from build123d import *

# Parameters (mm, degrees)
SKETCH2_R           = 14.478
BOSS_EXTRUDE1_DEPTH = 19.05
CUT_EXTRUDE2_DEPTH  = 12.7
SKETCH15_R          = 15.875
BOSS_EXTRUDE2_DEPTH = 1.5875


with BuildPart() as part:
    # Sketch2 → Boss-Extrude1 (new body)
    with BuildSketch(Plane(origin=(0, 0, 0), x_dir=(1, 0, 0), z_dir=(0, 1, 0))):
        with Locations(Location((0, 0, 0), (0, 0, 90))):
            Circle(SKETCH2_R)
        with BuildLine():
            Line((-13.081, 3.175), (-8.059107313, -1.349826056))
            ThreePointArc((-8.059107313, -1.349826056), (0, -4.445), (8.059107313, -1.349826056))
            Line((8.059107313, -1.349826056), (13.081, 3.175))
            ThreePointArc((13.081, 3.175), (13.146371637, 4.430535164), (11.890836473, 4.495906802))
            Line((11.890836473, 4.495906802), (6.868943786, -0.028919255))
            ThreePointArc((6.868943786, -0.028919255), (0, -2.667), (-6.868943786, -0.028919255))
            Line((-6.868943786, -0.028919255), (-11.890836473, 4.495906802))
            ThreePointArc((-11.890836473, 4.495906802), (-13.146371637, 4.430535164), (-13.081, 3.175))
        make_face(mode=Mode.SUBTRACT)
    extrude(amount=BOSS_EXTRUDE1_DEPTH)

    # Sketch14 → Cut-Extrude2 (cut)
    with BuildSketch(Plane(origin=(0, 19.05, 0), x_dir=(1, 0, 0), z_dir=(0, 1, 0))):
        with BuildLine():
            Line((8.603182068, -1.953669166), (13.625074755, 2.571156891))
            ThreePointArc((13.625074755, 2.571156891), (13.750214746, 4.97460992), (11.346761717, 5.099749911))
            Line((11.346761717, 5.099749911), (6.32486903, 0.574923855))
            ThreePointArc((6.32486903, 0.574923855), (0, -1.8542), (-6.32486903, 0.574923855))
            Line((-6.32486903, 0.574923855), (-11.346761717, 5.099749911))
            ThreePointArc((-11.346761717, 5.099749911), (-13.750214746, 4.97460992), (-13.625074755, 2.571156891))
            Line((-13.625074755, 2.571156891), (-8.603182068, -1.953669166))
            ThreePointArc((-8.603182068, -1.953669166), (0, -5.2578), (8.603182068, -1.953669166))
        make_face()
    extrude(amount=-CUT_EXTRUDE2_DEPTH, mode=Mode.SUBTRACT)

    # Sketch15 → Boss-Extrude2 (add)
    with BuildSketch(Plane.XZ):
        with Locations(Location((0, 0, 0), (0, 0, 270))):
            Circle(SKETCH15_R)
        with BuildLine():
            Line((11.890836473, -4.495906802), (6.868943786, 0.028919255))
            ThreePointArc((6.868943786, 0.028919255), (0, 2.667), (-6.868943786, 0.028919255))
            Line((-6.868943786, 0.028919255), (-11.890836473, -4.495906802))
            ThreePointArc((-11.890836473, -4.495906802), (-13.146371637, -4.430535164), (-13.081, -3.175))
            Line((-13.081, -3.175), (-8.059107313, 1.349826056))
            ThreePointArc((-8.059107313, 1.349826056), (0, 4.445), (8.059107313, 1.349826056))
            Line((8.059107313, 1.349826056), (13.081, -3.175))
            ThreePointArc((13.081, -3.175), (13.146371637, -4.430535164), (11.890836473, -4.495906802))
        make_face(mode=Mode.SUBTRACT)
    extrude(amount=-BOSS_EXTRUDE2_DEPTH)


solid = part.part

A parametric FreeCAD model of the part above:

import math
import FreeCAD as App
import Part
import Sketcher

V = App.Vector
Q = App.Units.Quantity

doc = App.newDocument("Part")
body = doc.addObject("PartDesign::Body", "Body")

sketch1 = body.newObject("Sketcher::SketchObject", "Sketch")
sketch1.AttachmentSupport = (doc.getObject("XZ_Plane"), [""])
sketch1.MapMode = "FlatFace"
sketch1.addGeometry([
    Part.Circle(V(0, 0, 0), V(0, 0, 1), 14.478),
    Part.LineSegment(V(-8.059107, 1.349826, 0), V(-13.081, -3.175, 0)),
    Part.ArcOfCircle(Part.Circle(V(-12.485918, -3.835453, 0), V(0, 0, 1), 0.889), math.radians(132.019486), math.radians(312.019486)),
    Part.LineSegment(V(-11.890836, -4.495907, 0), V(-6.868944, 0.028919, 0)),
    Part.ArcOfCircle(Part.Circle(V(0, -7.5946, 0), V(0, 0, 1), 10.2616), math.radians(47.980514), math.radians(132.019486)),
    Part.LineSegment(V(6.868944, 0.028919, 0), V(11.890836, -4.495907, 0)),
    Part.ArcOfCircle(Part.Circle(V(12.485918, -3.835453, 0), V(0, 0, 1), 0.889), math.radians(-132.019486), math.radians(47.980514)),
    Part.LineSegment(V(13.081, -3.175, 0), V(8.059107, 1.349826, 0)),
    Part.ArcOfCircle(Part.Circle(V(0, -7.5946, 0), V(0, 0, 1), 12.0396), math.radians(47.980514), math.radians(132.019486)),
], False)
sketch1.addConstraint([
    Sketcher.Constraint("Tangent", 1, 2, 2, 1),
    Sketcher.Constraint("Tangent", 2, 2, 3, 1),
    Sketcher.Constraint("Tangent", 3, 2, 4, 2),
    Sketcher.Constraint("Tangent", 4, 1, 5, 1),
    Sketcher.Constraint("Tangent", 5, 2, 6, 1),
    Sketcher.Constraint("Tangent", 6, 2, 7, 1),
    Sketcher.Constraint("Tangent", 7, 2, 8, 1),
    Sketcher.Constraint("Tangent", 8, 2, 1, 1),
    Sketcher.Constraint("Coincident", 0, 3, -1, 1),
    Sketcher.Constraint("Coincident", 8, 3, 4, 3),
    Sketcher.Constraint("Equal", 2, 6),
    Sketcher.Constraint("Symmetric", 2, 3, 6, 3, -2),
    Sketcher.Constraint("PointOnObject", 4, 3, -2),
    Sketcher.Constraint("Parallel", 1, 3),
    Sketcher.Constraint("Diameter", 0, Q("1.14 in")),
    Sketcher.Constraint("Radius", 2, Q("0.035 in")),
    Sketcher.Constraint("Radius", 4, Q("0.404 in")),
    Sketcher.Constraint("DistanceY", 4, 3, -1, 1, Q("0.299 in")),
    Sketcher.Constraint("DistanceX", 1, 2, -1, 1, Q("0.515 in")),
    Sketcher.Constraint("DistanceY", 1, 2, -1, 1, Q("0.125 in")),
])
pad1 = body.newObject("PartDesign::Pad", "Pad")
pad1.Profile = sketch1
pad1.Length = Q("0.75 in")
pad1.Reversed = True

sketch2 = body.newObject("Sketcher::SketchObject", "Sketch001")
sketch2.AttachmentSupport = (doc.getObject("XZ_Plane"), [""])
sketch2.MapMode = "FlatFace"
sketch2.AttachmentOffset = App.Placement(V(0, 0, -0.75 * 25.4), App.Rotation())
sketch2.addGeometry([
    Part.LineSegment(V(8.603182, 1.953669, 0), V(13.625075, -2.571157, 0)),
    Part.ArcOfCircle(Part.Circle(V(12.485918, -3.835453, 0), V(0, 0, 1), 1.7018), math.radians(-132.019486), math.radians(47.980514)),
    Part.LineSegment(V(11.346762, -5.09975, 0), V(6.324869, -0.574924, 0)),
    Part.ArcOfCircle(Part.Circle(V(0, -7.5946, 0), V(0, 0, 1), 9.4488), math.radians(47.980514), math.radians(132.019486)),
    Part.LineSegment(V(-6.324869, -0.574924, 0), V(-11.346762, -5.09975, 0)),
    Part.ArcOfCircle(Part.Circle(V(-12.485918, -3.835453, 0), V(0, 0, 1), 1.7018), math.radians(132.019486), math.radians(312.019486)),
    Part.LineSegment(V(-13.625075, -2.571157, 0), V(-8.603182, 1.953669, 0)),
    Part.ArcOfCircle(Part.Circle(V(0, -7.5946, 0), V(0, 0, 1), 12.8524), math.radians(47.980514), math.radians(132.019486)),
], False)
sketch2.addConstraint([
    Sketcher.Constraint("Tangent", 0, 2, 1, 2),
    Sketcher.Constraint("Tangent", 1, 1, 2, 1),
    Sketcher.Constraint("Tangent", 2, 2, 3, 1),
    Sketcher.Constraint("Tangent", 3, 2, 4, 1),
    Sketcher.Constraint("Tangent", 4, 2, 5, 2),
    Sketcher.Constraint("Tangent", 5, 1, 6, 1),
    Sketcher.Constraint("Tangent", 6, 2, 7, 2),
    Sketcher.Constraint("Tangent", 7, 1, 0, 1),
    Sketcher.Constraint("Coincident", 7, 3, 3, 3),
    Sketcher.Constraint("Equal", 1, 5),
    Sketcher.Constraint("Symmetric", 1, 3, 5, 3, -2),
    Sketcher.Constraint("PointOnObject", 3, 3, -2),
    Sketcher.Constraint("Parallel", 0, 2),
    Sketcher.Constraint("Radius", 1, Q("0.067 in")),
    Sketcher.Constraint("Radius", 3, Q("0.372 in")),
    Sketcher.Constraint("DistanceY", 3, 3, -1, 1, Q("0.299 in")),
    Sketcher.Constraint("DistanceX", -1, 1, 1, 3, Q("12.485918 mm")),
    Sketcher.Constraint("DistanceX", -1, 1, 1, 1, Q("11.346762 mm")),
])
pocket1 = body.newObject("PartDesign::Pocket", "Pocket")
pocket1.Profile = sketch2
pocket1.Length = Q("0.5 in")
pocket1.Reversed = True

sketch3 = body.newObject("Sketcher::SketchObject", "Sketch002")
sketch3.AttachmentSupport = (doc.getObject("XZ_Plane"), [""])
sketch3.MapMode = "FlatFace"
sketch3.addGeometry([
    Part.Circle(V(0, 0, 0), V(0, 0, 1), 15.875),
    Part.ArcOfCircle(Part.Circle(V(12.485918, -3.835453, 0), V(0, 0, 1), 0.889), math.radians(-132.019486), math.radians(47.980514)),
    Part.LineSegment(V(11.890836, -4.495907, 0), V(6.868944, 0.028919, 0)),
    Part.ArcOfCircle(Part.Circle(V(0, -7.5946, 0), V(0, 0, 1), 10.2616), math.radians(47.980514), math.radians(132.019486)),
    Part.LineSegment(V(-6.868944, 0.028919, 0), V(-11.890836, -4.495907, 0)),
    Part.ArcOfCircle(Part.Circle(V(-12.485918, -3.835453, 0), V(0, 0, 1), 0.889), math.radians(132.019486), math.radians(312.019486)),
    Part.LineSegment(V(-13.081, -3.175, 0), V(-8.059107, 1.349826, 0)),
    Part.ArcOfCircle(Part.Circle(V(0, -7.5946, 0), V(0, 0, 1), 12.0396), math.radians(47.980514), math.radians(132.019486)),
    Part.LineSegment(V(8.059107, 1.349826, 0), V(13.081, -3.175, 0)),
], False)
sketch3.addConstraint([
    Sketcher.Constraint("Tangent", 1, 1, 2, 1),
    Sketcher.Constraint("Tangent", 2, 2, 3, 1),
    Sketcher.Constraint("Tangent", 3, 2, 4, 1),
    Sketcher.Constraint("Tangent", 4, 2, 5, 2),
    Sketcher.Constraint("Tangent", 5, 1, 6, 1),
    Sketcher.Constraint("Tangent", 6, 2, 7, 2),
    Sketcher.Constraint("Tangent", 7, 1, 8, 1),
    Sketcher.Constraint("Tangent", 8, 2, 1, 2),
    Sketcher.Constraint("Coincident", 0, 3, -1, 1),
    Sketcher.Constraint("Coincident", 7, 3, 3, 3),
    Sketcher.Constraint("Equal", 1, 5),
    Sketcher.Constraint("Symmetric", 1, 3, 5, 3, -2),
    Sketcher.Constraint("PointOnObject", 3, 3, -2),
    Sketcher.Constraint("Parallel", 4, 6),
    Sketcher.Constraint("Diameter", 0, Q("1.25 in")),
    Sketcher.Constraint("Radius", 1, Q("0.035 in")),
    Sketcher.Constraint("Radius", 3, Q("0.404 in")),
    Sketcher.Constraint("DistanceY", 3, 3, -1, 1, Q("0.299 in")),
    Sketcher.Constraint("DistanceX", 5, 1, -1, 1, Q("0.515 in")),
    Sketcher.Constraint("DistanceY", 5, 1, -1, 1, Q("0.125 in")),
])
pad2 = body.newObject("PartDesign::Pad", "Pad001")
pad2.Profile = sketch3
pad2.Length = Q("0.0625 in")
pad2.Reversed = True

doc.recompute()
